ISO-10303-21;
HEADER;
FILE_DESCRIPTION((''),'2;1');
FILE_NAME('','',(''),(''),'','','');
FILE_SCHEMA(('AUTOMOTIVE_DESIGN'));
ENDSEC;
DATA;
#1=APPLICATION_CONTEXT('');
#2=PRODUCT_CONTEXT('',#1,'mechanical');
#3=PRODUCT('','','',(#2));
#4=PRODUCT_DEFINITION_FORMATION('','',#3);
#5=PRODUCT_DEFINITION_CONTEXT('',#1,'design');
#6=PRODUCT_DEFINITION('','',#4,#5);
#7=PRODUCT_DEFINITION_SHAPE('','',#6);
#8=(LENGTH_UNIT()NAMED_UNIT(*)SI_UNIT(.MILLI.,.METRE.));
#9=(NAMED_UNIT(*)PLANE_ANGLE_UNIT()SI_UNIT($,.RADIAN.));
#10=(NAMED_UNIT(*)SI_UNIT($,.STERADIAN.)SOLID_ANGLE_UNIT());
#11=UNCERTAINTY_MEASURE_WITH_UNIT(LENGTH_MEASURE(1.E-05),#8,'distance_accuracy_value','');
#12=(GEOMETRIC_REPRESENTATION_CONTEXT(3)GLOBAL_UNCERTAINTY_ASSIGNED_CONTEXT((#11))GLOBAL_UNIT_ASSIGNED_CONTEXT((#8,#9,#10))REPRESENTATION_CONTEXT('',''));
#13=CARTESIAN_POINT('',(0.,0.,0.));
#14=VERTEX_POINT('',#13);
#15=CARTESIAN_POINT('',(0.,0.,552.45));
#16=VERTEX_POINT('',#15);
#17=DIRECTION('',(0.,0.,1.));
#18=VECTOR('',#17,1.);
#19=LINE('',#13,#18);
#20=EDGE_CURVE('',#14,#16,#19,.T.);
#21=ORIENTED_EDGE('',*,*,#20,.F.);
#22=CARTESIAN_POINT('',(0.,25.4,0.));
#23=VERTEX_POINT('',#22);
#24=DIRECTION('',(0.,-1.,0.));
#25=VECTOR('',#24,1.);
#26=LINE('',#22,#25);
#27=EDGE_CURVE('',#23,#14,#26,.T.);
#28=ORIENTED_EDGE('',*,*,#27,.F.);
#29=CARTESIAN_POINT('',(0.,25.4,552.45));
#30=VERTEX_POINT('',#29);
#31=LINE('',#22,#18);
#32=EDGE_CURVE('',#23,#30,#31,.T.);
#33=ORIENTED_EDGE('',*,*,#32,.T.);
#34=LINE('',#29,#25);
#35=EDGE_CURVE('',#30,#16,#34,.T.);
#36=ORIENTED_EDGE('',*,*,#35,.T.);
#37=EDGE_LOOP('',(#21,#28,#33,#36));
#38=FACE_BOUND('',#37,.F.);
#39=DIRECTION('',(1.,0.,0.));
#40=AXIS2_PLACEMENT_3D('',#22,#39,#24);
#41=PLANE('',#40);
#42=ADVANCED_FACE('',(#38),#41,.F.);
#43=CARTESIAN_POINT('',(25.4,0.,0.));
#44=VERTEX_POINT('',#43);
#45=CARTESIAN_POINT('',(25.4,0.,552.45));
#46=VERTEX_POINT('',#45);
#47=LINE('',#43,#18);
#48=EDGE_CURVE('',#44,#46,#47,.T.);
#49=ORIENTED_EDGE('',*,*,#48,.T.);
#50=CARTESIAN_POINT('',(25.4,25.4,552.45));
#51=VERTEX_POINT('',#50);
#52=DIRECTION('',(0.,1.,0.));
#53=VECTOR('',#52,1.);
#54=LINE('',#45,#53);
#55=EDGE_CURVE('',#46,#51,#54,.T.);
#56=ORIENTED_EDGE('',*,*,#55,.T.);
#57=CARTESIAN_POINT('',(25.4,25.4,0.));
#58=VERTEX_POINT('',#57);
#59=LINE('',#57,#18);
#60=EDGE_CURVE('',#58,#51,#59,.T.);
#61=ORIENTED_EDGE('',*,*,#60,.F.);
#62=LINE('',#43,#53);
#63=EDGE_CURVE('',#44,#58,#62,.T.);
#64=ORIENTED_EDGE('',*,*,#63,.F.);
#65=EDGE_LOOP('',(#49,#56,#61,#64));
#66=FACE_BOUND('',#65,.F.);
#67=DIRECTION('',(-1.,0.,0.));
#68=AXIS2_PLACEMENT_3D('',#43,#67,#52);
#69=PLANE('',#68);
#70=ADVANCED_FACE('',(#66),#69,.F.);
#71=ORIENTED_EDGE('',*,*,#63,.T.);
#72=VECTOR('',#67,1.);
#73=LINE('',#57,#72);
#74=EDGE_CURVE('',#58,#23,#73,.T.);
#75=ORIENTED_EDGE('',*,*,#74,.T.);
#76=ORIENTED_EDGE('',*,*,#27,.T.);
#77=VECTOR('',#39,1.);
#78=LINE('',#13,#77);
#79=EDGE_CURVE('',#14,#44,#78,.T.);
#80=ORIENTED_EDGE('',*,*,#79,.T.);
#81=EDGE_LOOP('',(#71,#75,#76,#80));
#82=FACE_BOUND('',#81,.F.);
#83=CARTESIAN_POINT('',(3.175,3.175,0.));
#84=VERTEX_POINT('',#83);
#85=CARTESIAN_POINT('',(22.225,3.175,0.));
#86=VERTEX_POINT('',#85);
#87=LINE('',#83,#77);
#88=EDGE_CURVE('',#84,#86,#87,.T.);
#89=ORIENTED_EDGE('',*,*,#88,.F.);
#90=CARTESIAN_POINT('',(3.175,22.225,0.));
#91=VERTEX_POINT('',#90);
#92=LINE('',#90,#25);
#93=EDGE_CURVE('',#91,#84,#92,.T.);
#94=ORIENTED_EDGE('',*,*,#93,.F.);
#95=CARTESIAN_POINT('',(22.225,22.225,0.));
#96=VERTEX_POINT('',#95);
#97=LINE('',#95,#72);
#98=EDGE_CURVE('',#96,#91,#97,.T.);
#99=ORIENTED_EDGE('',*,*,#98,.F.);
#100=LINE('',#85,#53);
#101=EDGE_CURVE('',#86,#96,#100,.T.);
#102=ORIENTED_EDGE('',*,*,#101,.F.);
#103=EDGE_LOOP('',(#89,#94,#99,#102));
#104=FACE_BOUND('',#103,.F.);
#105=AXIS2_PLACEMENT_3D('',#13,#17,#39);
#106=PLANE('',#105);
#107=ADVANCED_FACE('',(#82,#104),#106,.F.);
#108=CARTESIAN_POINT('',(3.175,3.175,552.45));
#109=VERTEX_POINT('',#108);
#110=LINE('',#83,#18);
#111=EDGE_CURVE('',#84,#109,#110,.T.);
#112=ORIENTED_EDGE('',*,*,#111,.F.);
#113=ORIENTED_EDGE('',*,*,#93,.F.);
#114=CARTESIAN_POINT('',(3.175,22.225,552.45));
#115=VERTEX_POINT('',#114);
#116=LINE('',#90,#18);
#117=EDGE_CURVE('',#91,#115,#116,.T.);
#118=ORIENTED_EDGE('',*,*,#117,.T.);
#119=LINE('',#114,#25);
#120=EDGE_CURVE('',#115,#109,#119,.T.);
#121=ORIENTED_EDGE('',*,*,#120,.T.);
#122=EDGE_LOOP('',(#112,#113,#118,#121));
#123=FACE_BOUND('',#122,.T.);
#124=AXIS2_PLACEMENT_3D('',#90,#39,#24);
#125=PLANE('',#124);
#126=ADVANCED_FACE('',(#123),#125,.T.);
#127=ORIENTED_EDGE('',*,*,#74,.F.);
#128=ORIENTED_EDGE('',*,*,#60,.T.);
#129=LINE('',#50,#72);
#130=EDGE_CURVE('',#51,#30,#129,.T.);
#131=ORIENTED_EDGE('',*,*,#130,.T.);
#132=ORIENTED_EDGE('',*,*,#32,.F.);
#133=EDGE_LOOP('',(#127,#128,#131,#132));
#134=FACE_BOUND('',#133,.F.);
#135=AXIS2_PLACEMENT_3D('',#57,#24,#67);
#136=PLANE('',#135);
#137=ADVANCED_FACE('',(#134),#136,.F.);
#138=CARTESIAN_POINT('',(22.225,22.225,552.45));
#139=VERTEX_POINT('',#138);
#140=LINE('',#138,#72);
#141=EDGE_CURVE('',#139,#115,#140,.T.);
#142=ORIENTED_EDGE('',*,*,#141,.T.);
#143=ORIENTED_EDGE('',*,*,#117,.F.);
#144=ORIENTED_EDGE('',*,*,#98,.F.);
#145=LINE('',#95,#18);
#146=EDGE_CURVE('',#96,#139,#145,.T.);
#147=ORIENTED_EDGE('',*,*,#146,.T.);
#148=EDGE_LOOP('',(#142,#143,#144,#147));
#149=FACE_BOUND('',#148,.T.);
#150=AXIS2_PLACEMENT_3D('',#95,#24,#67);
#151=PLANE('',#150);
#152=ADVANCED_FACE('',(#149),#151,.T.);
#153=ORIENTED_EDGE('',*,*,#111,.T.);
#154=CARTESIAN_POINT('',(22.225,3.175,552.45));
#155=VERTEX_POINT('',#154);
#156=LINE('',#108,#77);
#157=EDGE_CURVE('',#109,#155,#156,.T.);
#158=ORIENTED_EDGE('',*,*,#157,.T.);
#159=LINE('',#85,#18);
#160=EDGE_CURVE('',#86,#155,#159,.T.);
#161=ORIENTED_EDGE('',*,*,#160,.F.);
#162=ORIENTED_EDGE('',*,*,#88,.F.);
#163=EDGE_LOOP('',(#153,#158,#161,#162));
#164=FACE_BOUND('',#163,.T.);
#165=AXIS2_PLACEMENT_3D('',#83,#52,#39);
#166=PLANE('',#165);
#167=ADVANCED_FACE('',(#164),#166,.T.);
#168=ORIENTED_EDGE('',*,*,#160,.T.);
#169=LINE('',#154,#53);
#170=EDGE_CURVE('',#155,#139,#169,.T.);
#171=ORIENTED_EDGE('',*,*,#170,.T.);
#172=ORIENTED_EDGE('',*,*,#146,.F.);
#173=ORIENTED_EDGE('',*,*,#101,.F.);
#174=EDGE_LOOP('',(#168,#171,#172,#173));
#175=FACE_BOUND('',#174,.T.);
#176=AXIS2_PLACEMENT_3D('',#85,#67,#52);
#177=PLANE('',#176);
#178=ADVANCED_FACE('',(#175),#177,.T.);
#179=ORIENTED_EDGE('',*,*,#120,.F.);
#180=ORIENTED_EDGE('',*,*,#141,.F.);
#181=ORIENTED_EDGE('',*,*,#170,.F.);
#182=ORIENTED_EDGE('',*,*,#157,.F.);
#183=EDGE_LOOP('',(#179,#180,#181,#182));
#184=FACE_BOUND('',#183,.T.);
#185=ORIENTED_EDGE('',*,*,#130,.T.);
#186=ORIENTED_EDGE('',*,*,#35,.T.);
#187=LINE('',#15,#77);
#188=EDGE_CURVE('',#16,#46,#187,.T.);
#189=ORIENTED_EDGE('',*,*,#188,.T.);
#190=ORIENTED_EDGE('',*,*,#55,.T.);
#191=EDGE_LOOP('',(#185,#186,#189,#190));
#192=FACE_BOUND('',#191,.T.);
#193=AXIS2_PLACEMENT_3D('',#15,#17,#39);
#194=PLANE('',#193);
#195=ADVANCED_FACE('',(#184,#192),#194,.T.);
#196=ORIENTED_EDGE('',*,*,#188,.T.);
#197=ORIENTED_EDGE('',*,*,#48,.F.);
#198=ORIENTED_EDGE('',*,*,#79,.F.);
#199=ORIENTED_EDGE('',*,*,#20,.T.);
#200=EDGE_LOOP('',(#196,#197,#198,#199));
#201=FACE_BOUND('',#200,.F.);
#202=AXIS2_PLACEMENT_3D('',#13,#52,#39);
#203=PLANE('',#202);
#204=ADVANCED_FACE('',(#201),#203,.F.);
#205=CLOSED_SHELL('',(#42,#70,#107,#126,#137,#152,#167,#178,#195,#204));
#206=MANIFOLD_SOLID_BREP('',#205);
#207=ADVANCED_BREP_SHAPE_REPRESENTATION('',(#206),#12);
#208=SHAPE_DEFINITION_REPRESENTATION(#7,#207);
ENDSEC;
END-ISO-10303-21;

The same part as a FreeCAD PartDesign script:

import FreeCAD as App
import Part
import Sketcher
Q = App.Units.Quantity


def add_polygon(sketch, points):
    """Adds a closed chain of lines whose ends are joined by coincident constraints."""
    first, n = sketch.GeometryCount, len(points)
    for a, b in zip(points, points[1:] + points[:1]):
        sketch.addGeometry(Part.LineSegment(App.Vector(*a, 0), App.Vector(*b, 0)), False)
    for i in range(n):
        sketch.addConstraint(Sketcher.Constraint("Coincident", first + i, 2, first + (i + 1) % n, 1))

doc = App.newDocument("Part")
params = doc.addObject("Spreadsheet::Sheet", "Params")
for row, (alias, value) in enumerate([
    ("sketch1_width", "1 in"),
    ("pad1_length", "21.75 in"),
], start=1):
    params.set(f"A{row}", alias)
    params.set(f"B{row}", "=" + value)
    params.setAlias(f"B{row}", alias)

body = doc.addObject("PartDesign::Body", "Body")

# Sketch on XY plane
sketch1 = doc.addObject("Sketcher::SketchObject", "Sketch")
body.addObject(sketch1)
sketch1.AttachmentSupport = (doc.XY_Plane, [""])
sketch1.MapMode = "FlatFace"
add_polygon(sketch1, [(0, 25.4), (0, 0), (25.4, 0), (25.4, 25.4)])  # lines 0-3
add_polygon(sketch1, [(22.225, 3.175), (3.175, 3.175), (3.175, 22.225), (22.225, 22.225)])  # lines 4-7
sketch1.addConstraint(Sketcher.Constraint("Vertical", 0))
sketch1.addConstraint(Sketcher.Constraint("Horizontal", 1))
sketch1.addConstraint(Sketcher.Constraint("Vertical", 2))
sketch1.addConstraint(Sketcher.Constraint("Horizontal", 3))
sketch1.addConstraint(Sketcher.Constraint("Horizontal", 4))
sketch1.addConstraint(Sketcher.Constraint("Vertical", 5))
sketch1.addConstraint(Sketcher.Constraint("Horizontal", 6))
sketch1.addConstraint(Sketcher.Constraint("Vertical", 7))
sketch1.addConstraint(Sketcher.Constraint("Coincident", 0, 2, -1, 1))
sketch1.addConstraint(Sketcher.Constraint("Equal", 3, 0))
sketch1.addConstraint(Sketcher.Constraint("Equal", 6, 5))
sketch1.addConstraint(Sketcher.Constraint("DistanceX", 1, 1, 1, 2, Q("1 in")))
sketch1.addConstraint(Sketcher.Constraint("DistanceX", -1, 1, 4, 2, Q("0.125 in")))
sketch1.addConstraint(Sketcher.Constraint("DistanceY", -1, 1, 4, 2, Q("0.125 in")))
sketch1.addConstraint(Sketcher.Constraint("DistanceY", 5, 2, 3, 2, Q("0.125 in")))
sketch1.setExpression("Constraints[19]", "Params.sketch1_width")
pad1 = doc.addObject("PartDesign::Pad", "Pad")
body.addObject(pad1)
pad1.Profile = sketch1
pad1.setExpression("Length", "Params.pad1_length")

doc.recompute()
